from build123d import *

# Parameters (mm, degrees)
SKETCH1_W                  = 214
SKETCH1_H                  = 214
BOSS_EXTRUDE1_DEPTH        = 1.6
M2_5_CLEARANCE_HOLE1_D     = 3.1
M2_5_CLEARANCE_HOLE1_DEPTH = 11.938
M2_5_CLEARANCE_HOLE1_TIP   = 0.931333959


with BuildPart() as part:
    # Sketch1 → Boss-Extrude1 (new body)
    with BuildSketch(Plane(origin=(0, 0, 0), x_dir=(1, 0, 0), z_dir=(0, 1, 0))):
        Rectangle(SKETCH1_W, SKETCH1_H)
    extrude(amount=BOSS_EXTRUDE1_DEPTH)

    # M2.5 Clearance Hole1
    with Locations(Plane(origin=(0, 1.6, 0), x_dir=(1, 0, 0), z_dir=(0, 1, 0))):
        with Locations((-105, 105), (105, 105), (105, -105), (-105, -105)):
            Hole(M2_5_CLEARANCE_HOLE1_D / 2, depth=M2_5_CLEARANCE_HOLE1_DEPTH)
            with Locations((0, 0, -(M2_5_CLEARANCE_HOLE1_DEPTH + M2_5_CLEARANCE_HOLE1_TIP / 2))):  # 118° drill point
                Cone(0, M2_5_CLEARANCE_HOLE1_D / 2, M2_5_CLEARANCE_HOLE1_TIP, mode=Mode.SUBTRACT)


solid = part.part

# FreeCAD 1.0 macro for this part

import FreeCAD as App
import Part
import Sketcher
Q = App.Units.Quantity


def add_polygon(sketch, points):
    """Adds a closed chain of lines whose ends are joined by coincident constraints."""
    first, n = sketch.GeometryCount, len(points)
    for a, b in zip(points, points[1:] + points[:1]):
        sketch.addGeometry(Part.LineSegment(App.Vector(*a, 0), App.Vector(*b, 0)), False)
    for i in range(n):
        sketch.addConstraint(Sketcher.Constraint("Coincident", first + i, 2, first + (i + 1) % n, 1))

doc = App.newDocument("Part")
params = doc.addObject("Spreadsheet::Sheet", "Params")
for row, (alias, value) in enumerate([
    ("sketch1_width", "214 mm"),
    ("pad1_length", "1.6 mm"),
    ("sketch2_diameter", "3.1 mm"),
    ("hole_diameter", "3.1 mm"),
    ("hole_depth", "11.938 mm"),
], start=1):
    params.set(f"A{row}", alias)
    params.set(f"B{row}", "=" + value)
    params.setAlias(f"B{row}", alias)

body = doc.addObject("PartDesign::Body", "Body")

# Sketch on XZ plane
sketch1 = body.newObject("Sketcher::SketchObject", "Sketch")
sketch1.AttachmentSupport = (doc.getObject("XZ_Plane"), [""])
sketch1.MapMode = "FlatFace"
add_polygon(sketch1, [(-107, -107), (-107, 107), (107, 107), (107, -107)])  # lines 0-3
sketch1.addConstraint(Sketcher.Constraint("Vertical", 0))
sketch1.addConstraint(Sketcher.Constraint("Horizontal", 1))
sketch1.addConstraint(Sketcher.Constraint("Vertical", 2))
sketch1.addConstraint(Sketcher.Constraint("Horizontal", 3))
sketch1.addConstraint(Sketcher.Constraint("Symmetric", 0, 2, 2, 2, -1, 1))
sketch1.addConstraint(Sketcher.Constraint("Equal", 3, 0))
sketch1.addConstraint(Sketcher.Constraint("DistanceX", 1, 1, 1, 2, Q("214 mm")))
sketch1.setExpression("Constraints[10]", "Params.sketch1_width")
pad1 = body.newObject("PartDesign::Pad", "Pad")
pad1.Profile = sketch1
pad1.setExpression("Length", "Params.pad1_length")
pad1.Reversed = True

# Sketch on XZ plane
sketch2 = body.newObject("Sketcher::SketchObject", "Sketch001")
sketch2.AttachmentSupport = (doc.getObject("XZ_Plane"), [""])
sketch2.MapMode = "FlatFace"
sketch2.AttachmentOffset = App.Placement(App.Vector(0, 0, -1.6), App.Rotation())
sketch2.addGeometry(Part.Circle(App.Vector(-105, -105, 0), App.Vector(0, 0, 1), 1.6), False)
sketch2.addGeometry(Part.Circle(App.Vector(105, -105, 0), App.Vector(0, 0, 1), 1.6), False)
sketch2.addGeometry(Part.Circle(App.Vector(105, 105, 0), App.Vector(0, 0, 1), 1.6), False)
sketch2.addGeometry(Part.Circle(App.Vector(-105, 105, 0), App.Vector(0, 0, 1), 1.6), False)
sketch2.addConstraint(Sketcher.Constraint("Equal", 0, 1))
sketch2.addConstraint(Sketcher.Constraint("Equal", 1, 2))
sketch2.addConstraint(Sketcher.Constraint("Equal", 2, 3))
sketch2.addConstraint(Sketcher.Constraint("Symmetric", 0, 3, 2, 3, -1, 1))
sketch2.addConstraint(Sketcher.Constraint("Symmetric", 1, 3, 3, 3, -1, 1))
sketch2.addConstraint(Sketcher.Constraint("Symmetric", 0, 3, 1, 3, -2))
sketch2.addConstraint(Sketcher.Constraint("Diameter", 0, Q("3.1 mm")))
sketch2.addConstraint(Sketcher.Constraint("DistanceX", 0, 3, -1, 1, Q("105 mm")))
sketch2.addConstraint(Sketcher.Constraint("DistanceY", 0, 3, -1, 1, Q("105 mm")))
sketch2.setExpression("Constraints[6]", "Params.sketch2_diameter")
doc.recompute()
hole = body.newObject("PartDesign::Hole", "Hole")
hole.Profile = sketch2
hole.ThreadType = "None"
hole.setExpression("Diameter", "Params.hole_diameter")
hole.DepthType = "Dimension"
hole.setExpression("Depth", "Params.hole_depth")
hole.DrillPoint = "Angled"
hole.DrillPointAngle = 118
hole.Reversed = True

doc.recompute()
